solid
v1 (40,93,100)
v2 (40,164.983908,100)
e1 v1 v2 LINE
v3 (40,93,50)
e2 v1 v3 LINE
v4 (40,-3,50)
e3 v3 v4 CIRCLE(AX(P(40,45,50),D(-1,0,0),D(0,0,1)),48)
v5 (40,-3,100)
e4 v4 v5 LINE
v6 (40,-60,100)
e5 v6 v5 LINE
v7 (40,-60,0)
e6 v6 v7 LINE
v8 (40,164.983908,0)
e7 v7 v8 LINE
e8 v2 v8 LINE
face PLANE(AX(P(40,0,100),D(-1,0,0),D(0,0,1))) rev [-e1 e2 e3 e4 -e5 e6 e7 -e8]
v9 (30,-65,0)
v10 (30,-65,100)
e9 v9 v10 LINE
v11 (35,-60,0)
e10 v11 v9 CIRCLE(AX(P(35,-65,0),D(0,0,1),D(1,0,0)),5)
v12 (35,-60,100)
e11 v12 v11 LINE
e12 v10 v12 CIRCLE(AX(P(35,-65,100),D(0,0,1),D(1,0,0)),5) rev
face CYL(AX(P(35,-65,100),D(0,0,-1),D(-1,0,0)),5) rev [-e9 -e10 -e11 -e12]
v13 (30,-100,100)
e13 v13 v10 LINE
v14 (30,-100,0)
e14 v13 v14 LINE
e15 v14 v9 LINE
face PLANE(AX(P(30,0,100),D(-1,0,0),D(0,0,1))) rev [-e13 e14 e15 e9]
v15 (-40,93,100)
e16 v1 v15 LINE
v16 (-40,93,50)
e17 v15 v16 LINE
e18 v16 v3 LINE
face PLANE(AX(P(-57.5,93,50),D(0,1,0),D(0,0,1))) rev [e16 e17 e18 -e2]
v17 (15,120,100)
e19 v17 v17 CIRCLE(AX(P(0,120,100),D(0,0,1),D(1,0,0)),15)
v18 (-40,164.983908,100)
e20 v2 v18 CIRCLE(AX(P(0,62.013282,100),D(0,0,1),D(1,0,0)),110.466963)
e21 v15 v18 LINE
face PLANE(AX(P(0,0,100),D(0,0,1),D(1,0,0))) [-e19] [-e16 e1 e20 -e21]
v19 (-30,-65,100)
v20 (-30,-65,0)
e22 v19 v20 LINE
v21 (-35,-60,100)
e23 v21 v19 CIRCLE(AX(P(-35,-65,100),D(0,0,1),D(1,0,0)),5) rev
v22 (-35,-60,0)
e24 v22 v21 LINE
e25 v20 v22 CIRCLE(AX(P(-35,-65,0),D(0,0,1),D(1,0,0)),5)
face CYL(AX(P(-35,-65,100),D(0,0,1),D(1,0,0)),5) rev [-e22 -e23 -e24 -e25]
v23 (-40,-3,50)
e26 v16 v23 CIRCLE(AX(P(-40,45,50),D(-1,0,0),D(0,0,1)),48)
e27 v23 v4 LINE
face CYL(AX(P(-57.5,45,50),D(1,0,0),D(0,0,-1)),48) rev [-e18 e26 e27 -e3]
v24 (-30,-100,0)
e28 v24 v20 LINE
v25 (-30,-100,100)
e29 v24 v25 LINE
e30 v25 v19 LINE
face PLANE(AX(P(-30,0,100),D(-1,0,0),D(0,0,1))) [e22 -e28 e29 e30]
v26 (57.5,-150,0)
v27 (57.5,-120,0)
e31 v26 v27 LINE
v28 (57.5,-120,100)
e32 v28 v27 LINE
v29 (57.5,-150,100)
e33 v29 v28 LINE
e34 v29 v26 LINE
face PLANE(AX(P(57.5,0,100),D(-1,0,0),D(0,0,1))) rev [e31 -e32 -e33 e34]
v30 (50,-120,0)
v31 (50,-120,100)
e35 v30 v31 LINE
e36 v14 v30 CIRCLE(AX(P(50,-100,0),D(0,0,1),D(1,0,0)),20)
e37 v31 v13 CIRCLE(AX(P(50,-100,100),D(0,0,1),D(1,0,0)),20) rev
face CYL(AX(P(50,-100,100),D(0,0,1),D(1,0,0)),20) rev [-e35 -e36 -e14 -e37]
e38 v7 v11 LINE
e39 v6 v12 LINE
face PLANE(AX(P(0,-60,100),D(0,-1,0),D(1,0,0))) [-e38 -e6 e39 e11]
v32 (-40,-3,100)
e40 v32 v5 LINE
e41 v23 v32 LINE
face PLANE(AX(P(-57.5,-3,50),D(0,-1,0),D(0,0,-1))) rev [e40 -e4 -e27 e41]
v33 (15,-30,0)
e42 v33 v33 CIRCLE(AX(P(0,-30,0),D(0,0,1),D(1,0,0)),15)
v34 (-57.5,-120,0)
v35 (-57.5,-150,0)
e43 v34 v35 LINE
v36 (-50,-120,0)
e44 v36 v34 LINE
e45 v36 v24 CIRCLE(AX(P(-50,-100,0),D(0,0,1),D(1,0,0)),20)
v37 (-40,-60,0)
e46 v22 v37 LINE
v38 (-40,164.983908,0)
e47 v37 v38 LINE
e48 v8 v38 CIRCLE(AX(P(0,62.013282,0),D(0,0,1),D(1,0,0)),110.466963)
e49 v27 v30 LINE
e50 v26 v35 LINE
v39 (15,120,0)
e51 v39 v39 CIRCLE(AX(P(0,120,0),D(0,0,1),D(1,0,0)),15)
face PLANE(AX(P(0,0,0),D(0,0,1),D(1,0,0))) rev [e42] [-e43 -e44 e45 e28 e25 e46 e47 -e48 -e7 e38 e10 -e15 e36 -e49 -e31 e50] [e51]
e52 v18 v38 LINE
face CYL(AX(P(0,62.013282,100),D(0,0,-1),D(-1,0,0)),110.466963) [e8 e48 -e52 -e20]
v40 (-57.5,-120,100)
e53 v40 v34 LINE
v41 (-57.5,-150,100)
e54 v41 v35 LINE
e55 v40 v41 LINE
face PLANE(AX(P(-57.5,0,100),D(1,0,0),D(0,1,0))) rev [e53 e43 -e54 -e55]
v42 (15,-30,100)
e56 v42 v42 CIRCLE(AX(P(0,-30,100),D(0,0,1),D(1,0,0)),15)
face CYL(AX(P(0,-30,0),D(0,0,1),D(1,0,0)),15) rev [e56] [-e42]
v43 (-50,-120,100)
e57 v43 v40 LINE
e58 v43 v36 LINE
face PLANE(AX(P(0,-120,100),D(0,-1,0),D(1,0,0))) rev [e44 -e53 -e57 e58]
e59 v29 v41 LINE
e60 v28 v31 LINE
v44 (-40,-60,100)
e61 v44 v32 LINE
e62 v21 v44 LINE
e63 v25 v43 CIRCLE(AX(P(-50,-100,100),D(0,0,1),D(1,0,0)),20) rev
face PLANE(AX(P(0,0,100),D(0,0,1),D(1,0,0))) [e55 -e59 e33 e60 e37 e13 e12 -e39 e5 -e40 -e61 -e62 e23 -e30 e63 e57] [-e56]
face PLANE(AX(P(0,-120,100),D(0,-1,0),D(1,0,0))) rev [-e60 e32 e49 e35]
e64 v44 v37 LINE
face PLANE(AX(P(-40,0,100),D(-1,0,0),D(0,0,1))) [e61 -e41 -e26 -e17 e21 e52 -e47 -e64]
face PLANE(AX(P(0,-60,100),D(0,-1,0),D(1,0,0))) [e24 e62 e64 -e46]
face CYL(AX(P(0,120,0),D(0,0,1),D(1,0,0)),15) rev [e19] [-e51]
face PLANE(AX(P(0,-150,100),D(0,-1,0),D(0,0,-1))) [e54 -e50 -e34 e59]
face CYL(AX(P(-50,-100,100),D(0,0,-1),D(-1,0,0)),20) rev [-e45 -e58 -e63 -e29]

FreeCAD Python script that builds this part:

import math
import FreeCAD as App
import Part
import Sketcher

V = App.Vector


def edges_at(feature, points):
    """Names of the edges that pass closest to the given points."""
    edges = feature.Shape.Edges
    near = lambda p: min(range(len(edges)), key=lambda i: edges[i].distToShape(Part.Vertex(*p))[0])
    return sorted({f"Edge{near(p) + 1}" for p in points})

doc = App.newDocument("Part")
body = doc.addObject("PartDesign::Body", "Body")

# Sketch on XY plane
sketch1 = body.newObject("Sketcher::SketchObject", "Sketch")
sketch1.AttachmentSupport = (doc.getObject("XY_Plane"), [""])
sketch1.MapMode = "FlatFace"
sketch1.addGeometry([
    Part.LineSegment(V(-40, -60, 0), V(-30, -60, 0)),  # 0
    Part.LineSegment(V(-30, -60, 0), V(-30, -120, 0)),  # 1
    Part.LineSegment(V(-30, -120, 0), V(-57.5, -120, 0)),  # 2
    Part.LineSegment(V(-57.5, -120, 0), V(-57.5, -150, 0)),  # 3
    Part.LineSegment(V(-57.5, -150, 0), V(57.5, -150, 0)),  # 4
    Part.LineSegment(V(57.5, -150, 0), V(57.5, -120, 0)),  # 5
    Part.LineSegment(V(57.5, -120, 0), V(30, -120, 0)),  # 6
    Part.LineSegment(V(30, -120, 0), V(30, -60, 0)),  # 7
    Part.LineSegment(V(30, -60, 0), V(40, -60, 0)),  # 8
    Part.LineSegment(V(40, -60, 0), V(40, 164.983908, 0)),  # 9
    Part.ArcOfCircle(Part.Circle(V(0.000479, 62.014517, 0), V(0, 0, 1), 110.465638), math.radians(68.770828), math.radians(68.79389)),  # 10
    Part.ArcOfCircle(Part.Circle(V(0, 62.013282, 0), V(0, 0, 1), 110.466963), math.radians(68.79389), math.radians(111.20611)),  # 11
    Part.ArcOfCircle(Part.Circle(V(-0.000479, 62.014517, 0), V(0, 0, 1), 110.465639), math.radians(111.20611), math.radians(111.229172)),  # 12
    Part.LineSegment(V(-40, 164.983908, 0), V(-40, -60, 0)),  # 13
], False)
sketch1.addConstraint([
    Sketcher.Constraint("Coincident", 0, 2, 1, 1),
    Sketcher.Constraint("Coincident", 1, 2, 2, 1),
    Sketcher.Constraint("Coincident", 2, 2, 3, 1),
    Sketcher.Constraint("Coincident", 3, 2, 4, 1),
    Sketcher.Constraint("Coincident", 4, 2, 5, 1),
    Sketcher.Constraint("Coincident", 5, 2, 6, 1),
    Sketcher.Constraint("Coincident", 6, 2, 7, 1),
    Sketcher.Constraint("Coincident", 7, 2, 8, 1),
    Sketcher.Constraint("Coincident", 8, 2, 9, 1),
    Sketcher.Constraint("Coincident", 9, 2, 10, 1),
    Sketcher.Constraint("Tangent", 10, 2, 11, 1),
    Sketcher.Constraint("Tangent", 11, 2, 12, 1),
    Sketcher.Constraint("Coincident", 12, 2, 13, 1),
    Sketcher.Constraint("Coincident", 13, 2, 0, 1),
    Sketcher.Constraint("Horizontal", 0),
    Sketcher.Constraint("Vertical", 1),
    Sketcher.Constraint("Horizontal", 2),
    Sketcher.Constraint("Vertical", 3),
    Sketcher.Constraint("Horizontal", 4),
    Sketcher.Constraint("Vertical", 5),
    Sketcher.Constraint("Horizontal", 6),
    Sketcher.Constraint("Vertical", 7),
    Sketcher.Constraint("Horizontal", 8),
    Sketcher.Constraint("Vertical", 9),
    Sketcher.Constraint("Vertical", 13),
    Sketcher.Constraint("Equal", 10, 12),
    Sketcher.Constraint("Symmetric", 2, 2, 5, 2, -2),
    Sketcher.Constraint("Symmetric", 0, 2, 7, 2, -2),
    Sketcher.Constraint("Symmetric", 10, 2, 11, 2, -2),
    Sketcher.Constraint("Horizontal", 9, 2, 12, 2),
    Sketcher.Constraint("DistanceX", 0, 1, 0, 2, 10.0),
    Sketcher.Constraint("DistanceX", 4, 1, 4, 2, 115.0),
    Sketcher.Constraint("DistanceY", 1, 2, 1, 1, 60.0),
    Sketcher.Constraint("DistanceY", 3, 2, 3, 1, 30.0),
    Sketcher.Constraint("DistanceX", 2, 2, 2, 1, 27.5),
    Sketcher.Constraint("DistanceY", 0, 2, -1, 1, 60.0),
    Sketcher.Constraint("DistanceY", -1, 1, 10, 2, 165.0),
    Sketcher.Constraint("Radius", 12, 110.465639),
    Sketcher.Constraint("Radius", 11, 110.466963),
    Sketcher.Constraint("DistanceY", 9, 1, 9, 2, 224.983908),
])
pad1 = body.newObject("PartDesign::Pad", "Pad")
pad1.Profile = sketch1
pad1.Length = 100
doc.recompute()

fillet = body.newObject("PartDesign::Fillet", "Fillet")
fillet.Base = (pad1, edges_at(pad1, [(-30, -60, 50)]))
fillet.Radius = 5
doc.recompute()

fillet2 = body.newObject("PartDesign::Fillet", "Fillet001")
fillet2.Base = (fillet, edges_at(fillet, [(30, -60, 50)]))
fillet2.Radius = 5
doc.recompute()

fillet3 = body.newObject("PartDesign::Fillet", "Fillet002")
fillet3.Base = (fillet2, edges_at(fillet2, [(-30, -120, 50)]))
fillet3.Radius = 20
doc.recompute()

fillet4 = body.newObject("PartDesign::Fillet", "Fillet003")
fillet4.Base = (fillet3, edges_at(fillet3, [(30, -120, 50)]))
fillet4.Radius = 20

# Sketch on XY plane
sketch2 = body.newObject("Sketcher::SketchObject", "Sketch001")
sketch2.AttachmentSupport = (doc.getObject("XY_Plane"), [""])
sketch2.MapMode = "FlatFace"
sketch2.AttachmentOffset = App.Placement(V(0, 0, 100), App.Rotation())
sketch2.addGeometry(Part.Circle(V(0, 120, 0), V(0, 0, 1), 15), False)
sketch2.addConstraint([
    Sketcher.Constraint("PointOnObject", 0, 3, -2),
    Sketcher.Constraint("Diameter", 0, 30.0),
    Sketcher.Constraint("DistanceY", -1, 1, 0, 3, 120.0),
])
pocket1 = body.newObject("PartDesign::Pocket", "Pocket")
pocket1.Profile = sketch2
pocket1.Type = "ThroughAll"

# Sketch on XY plane
sketch3 = body.newObject("Sketcher::SketchObject", "Sketch002")
sketch3.AttachmentSupport = (doc.getObject("XY_Plane"), [""])
sketch3.MapMode = "FlatFace"
sketch3.AttachmentOffset = App.Placement(V(0, 0, 100), App.Rotation())
sketch3.addGeometry(Part.Circle(V(0, -30, 0), V(0, 0, 1), 15), False)
sketch3.addConstraint([
    Sketcher.Constraint("PointOnObject", 0, 3, -2),
    Sketcher.Constraint("Diameter", 0, 30.0),
    Sketcher.Constraint("DistanceY", 0, 3, -1, 1, 30.0),
])
pocket2 = body.newObject("PartDesign::Pocket", "Pocket001")
pocket2.Profile = sketch3
pocket2.Type = "ThroughAll"

# Sketch on YZ plane
sketch4 = body.newObject("Sketcher::SketchObject", "Sketch003")
sketch4.AttachmentSupport = (doc.getObject("YZ_Plane"), [""])
sketch4.MapMode = "FlatFace"
sketch4.addGeometry([
    Part.LineSegment(V(93, 50, 0), V(93, 100, 0)),
    Part.LineSegment(V(93, 100, 0), V(-3, 100, 0)),
    Part.LineSegment(V(-3, 100, 0), V(-3, 50, 0)),
    Part.ArcOfCircle(Part.Circle(V(45, 50, 0), V(0, 0, 1), 48), math.radians(180), math.radians(360)),
], False)
sketch4.addConstraint([
    Sketcher.Constraint("Coincident", 0, 2, 1, 1),
    Sketcher.Constraint("Coincident", 1, 2, 2, 1),
    Sketcher.Constraint("Tangent", 2, 2, 3, 1),
    Sketcher.Constraint("Tangent", 3, 2, 0, 1),
    Sketcher.Constraint("Vertical", 0),
    Sketcher.Constraint("Horizontal", 1),
    Sketcher.Constraint("Vertical", 2),
    Sketcher.Constraint("Radius", 3, 48.0),
    Sketcher.Constraint("DistanceY", 0, 1, 0, 2, 50.0),
    Sketcher.Constraint("DistanceX", -1, 1, 3, 3, 45.0),
    Sketcher.Constraint("DistanceY", -1, 1, 3, 3, 50.0),
])
pocket3 = body.newObject("PartDesign::Pocket", "Pocket002")
pocket3.Profile = sketch4
pocket3.Type = "ThroughAll"
pocket3.Midplane = True

doc.recompute()
